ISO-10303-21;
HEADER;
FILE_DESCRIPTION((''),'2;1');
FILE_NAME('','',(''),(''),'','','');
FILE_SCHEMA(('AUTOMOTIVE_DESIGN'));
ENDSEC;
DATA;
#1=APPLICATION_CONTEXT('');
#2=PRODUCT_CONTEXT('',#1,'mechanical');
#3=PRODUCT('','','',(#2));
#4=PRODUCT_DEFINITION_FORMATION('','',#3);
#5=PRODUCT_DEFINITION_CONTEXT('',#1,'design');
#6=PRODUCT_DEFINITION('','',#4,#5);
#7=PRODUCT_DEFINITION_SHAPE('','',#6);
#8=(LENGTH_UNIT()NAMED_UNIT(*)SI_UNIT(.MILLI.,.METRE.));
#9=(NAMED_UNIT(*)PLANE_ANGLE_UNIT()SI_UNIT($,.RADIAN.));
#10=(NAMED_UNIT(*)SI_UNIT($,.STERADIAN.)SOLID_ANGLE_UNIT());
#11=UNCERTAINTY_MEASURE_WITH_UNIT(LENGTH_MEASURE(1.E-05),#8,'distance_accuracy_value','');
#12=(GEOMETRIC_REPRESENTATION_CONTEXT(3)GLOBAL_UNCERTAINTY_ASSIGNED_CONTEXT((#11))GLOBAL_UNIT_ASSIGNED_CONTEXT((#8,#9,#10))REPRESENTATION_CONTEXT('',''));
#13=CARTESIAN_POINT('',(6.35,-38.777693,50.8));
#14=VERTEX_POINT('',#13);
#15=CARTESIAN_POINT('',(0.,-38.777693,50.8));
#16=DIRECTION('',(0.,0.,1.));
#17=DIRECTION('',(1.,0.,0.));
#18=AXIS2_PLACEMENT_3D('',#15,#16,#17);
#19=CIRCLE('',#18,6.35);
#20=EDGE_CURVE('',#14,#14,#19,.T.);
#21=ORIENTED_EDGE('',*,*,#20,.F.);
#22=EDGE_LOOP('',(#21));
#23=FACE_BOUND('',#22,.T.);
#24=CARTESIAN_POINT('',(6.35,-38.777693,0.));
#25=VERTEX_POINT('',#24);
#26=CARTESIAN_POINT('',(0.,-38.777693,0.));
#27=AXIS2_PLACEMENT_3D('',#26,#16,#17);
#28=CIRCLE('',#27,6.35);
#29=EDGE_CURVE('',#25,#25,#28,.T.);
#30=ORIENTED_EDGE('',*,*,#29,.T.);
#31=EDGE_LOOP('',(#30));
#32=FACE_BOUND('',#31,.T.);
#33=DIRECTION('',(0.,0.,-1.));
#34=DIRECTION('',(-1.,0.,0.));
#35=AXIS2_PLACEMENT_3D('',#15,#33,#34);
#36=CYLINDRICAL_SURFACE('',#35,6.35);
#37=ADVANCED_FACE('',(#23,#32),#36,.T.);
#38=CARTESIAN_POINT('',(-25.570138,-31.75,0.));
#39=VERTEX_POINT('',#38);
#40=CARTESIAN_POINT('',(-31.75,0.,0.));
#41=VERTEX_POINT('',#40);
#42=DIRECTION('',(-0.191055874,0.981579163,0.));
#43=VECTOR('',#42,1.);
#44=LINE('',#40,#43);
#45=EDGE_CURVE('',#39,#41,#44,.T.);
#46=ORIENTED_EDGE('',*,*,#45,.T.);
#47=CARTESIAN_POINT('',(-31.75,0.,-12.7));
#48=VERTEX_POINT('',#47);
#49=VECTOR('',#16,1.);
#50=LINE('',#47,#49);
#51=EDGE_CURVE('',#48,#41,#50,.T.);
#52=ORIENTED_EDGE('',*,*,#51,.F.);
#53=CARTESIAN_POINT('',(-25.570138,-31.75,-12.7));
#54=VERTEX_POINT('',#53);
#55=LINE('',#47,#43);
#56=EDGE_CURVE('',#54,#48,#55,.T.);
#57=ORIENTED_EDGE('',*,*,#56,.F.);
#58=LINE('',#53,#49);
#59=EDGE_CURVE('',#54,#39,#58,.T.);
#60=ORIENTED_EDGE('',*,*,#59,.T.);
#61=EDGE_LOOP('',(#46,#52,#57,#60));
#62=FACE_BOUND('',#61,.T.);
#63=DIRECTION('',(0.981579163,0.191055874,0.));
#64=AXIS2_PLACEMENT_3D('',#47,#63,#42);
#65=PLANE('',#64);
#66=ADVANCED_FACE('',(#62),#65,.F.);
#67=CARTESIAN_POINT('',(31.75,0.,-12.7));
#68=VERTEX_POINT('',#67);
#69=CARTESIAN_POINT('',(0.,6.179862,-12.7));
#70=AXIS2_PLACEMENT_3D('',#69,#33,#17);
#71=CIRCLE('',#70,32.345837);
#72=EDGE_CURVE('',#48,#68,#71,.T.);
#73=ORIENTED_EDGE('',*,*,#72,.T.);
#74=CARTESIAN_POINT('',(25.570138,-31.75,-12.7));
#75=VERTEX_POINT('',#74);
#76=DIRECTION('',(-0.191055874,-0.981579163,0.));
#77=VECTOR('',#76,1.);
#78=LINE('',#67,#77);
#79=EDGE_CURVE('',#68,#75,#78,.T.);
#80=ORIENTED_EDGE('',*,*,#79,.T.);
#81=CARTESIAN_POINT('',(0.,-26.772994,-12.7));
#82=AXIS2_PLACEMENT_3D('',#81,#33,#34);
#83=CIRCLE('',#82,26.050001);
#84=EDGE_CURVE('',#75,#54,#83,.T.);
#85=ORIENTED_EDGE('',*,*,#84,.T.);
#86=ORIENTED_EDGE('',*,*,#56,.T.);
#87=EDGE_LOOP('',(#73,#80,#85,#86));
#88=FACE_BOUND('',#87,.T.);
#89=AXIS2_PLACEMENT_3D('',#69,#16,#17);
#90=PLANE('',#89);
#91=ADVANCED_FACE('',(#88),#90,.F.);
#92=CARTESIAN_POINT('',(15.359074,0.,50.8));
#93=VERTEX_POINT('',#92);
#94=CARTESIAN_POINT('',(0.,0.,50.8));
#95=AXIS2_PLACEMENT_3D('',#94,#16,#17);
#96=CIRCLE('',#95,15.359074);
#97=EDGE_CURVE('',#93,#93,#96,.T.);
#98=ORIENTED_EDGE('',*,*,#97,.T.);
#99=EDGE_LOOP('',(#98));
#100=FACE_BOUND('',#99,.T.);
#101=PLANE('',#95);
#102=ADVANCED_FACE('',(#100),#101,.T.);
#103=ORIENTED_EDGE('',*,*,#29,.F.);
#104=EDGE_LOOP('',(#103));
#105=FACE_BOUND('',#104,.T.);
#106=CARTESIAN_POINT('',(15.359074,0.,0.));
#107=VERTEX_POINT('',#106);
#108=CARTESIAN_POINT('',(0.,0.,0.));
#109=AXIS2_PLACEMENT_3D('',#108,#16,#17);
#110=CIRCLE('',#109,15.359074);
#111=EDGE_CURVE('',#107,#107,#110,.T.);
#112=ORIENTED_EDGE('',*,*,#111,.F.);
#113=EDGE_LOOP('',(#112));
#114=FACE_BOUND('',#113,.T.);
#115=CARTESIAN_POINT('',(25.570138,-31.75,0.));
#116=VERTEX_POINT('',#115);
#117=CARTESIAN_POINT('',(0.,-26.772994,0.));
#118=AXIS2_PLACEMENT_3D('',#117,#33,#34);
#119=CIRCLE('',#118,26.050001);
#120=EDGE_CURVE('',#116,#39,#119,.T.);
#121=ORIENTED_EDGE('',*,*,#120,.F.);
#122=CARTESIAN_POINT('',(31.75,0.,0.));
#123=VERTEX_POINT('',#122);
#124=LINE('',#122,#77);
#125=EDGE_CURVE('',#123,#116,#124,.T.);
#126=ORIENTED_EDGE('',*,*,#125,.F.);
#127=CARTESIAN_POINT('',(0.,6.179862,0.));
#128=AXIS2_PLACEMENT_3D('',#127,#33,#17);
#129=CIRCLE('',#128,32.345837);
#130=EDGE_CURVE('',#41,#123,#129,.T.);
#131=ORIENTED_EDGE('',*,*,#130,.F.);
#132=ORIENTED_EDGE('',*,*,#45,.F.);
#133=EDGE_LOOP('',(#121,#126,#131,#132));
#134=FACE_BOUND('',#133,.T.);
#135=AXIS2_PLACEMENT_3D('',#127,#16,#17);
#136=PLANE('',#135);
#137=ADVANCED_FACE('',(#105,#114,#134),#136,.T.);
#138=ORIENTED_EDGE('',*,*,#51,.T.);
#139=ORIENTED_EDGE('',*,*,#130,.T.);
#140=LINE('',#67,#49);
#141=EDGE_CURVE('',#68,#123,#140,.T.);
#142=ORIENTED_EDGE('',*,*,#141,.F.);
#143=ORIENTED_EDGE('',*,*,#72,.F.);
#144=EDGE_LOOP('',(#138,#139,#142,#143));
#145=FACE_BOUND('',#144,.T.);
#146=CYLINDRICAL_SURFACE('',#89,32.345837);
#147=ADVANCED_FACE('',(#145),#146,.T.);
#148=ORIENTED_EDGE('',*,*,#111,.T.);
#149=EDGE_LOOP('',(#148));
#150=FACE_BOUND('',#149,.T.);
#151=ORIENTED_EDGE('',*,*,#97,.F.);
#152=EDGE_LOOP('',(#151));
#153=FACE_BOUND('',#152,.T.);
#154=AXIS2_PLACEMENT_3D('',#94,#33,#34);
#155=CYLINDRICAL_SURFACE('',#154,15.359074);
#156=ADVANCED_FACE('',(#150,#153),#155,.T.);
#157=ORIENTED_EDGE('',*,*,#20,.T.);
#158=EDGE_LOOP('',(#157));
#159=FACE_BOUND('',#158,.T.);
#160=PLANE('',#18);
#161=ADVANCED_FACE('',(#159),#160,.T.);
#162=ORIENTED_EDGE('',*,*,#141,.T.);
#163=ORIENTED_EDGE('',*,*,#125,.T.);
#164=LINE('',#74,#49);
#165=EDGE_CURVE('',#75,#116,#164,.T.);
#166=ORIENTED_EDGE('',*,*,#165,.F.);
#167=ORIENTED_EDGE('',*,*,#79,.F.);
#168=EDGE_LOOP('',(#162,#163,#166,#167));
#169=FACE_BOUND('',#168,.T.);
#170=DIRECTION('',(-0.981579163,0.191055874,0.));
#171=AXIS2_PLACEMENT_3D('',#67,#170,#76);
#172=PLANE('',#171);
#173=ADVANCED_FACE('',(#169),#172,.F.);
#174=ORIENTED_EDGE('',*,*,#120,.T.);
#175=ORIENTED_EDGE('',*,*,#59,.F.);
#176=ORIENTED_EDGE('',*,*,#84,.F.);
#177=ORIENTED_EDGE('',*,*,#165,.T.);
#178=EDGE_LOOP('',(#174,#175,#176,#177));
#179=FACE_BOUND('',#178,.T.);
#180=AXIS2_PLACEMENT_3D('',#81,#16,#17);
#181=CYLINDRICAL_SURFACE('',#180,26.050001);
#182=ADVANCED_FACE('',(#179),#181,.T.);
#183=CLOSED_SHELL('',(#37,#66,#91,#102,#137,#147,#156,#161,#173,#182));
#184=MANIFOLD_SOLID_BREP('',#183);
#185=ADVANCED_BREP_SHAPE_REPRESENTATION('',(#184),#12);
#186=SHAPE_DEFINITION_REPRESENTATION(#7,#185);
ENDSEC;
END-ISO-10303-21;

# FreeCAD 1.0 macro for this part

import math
import FreeCAD as App
import Part
import Sketcher
Q = App.Units.Quantity

doc = App.newDocument("Part")
params = doc.addObject("Spreadsheet::Sheet", "Params")
for row, (alias, value) in enumerate([
    ("pad1_length", "2 in"),
    ("pad2_length", "0.5 in"),
    ("sketch3_diameter", "0.5 in"),
    ("pad3_length", "2 in"),
], start=1):
    params.set(f"A{row}", alias)
    params.set(f"B{row}", "=" + value)
    params.setAlias(f"B{row}", alias)

body = doc.addObject("PartDesign::Body", "Body")

sketch1 = body.newObject("Sketcher::SketchObject", "Sketch")
sketch1.AttachmentSupport = (doc.getObject("XY_Plane"), [""])
sketch1.MapMode = "FlatFace"
sketch1.addGeometry(Part.Circle(App.Vector(0, 0, 0), App.Vector(0, 0, 1), 15), False)
sketch1.addConstraint(Sketcher.Constraint("Coincident", 0, 3, -1, 1))
sketch1.addConstraint(Sketcher.Constraint("Diameter", 0, Q("30.718148 mm")))
pad1 = body.newObject("PartDesign::Pad", "Pad")
pad1.Profile = sketch1
pad1.setExpression("Length", "Params.pad1_length")

sketch2 = body.newObject("Sketcher::SketchObject", "Sketch001")
sketch2.AttachmentSupport = (doc.getObject("XY_Plane"), [""])
sketch2.MapMode = "FlatFace"
sketch2.addGeometry(Part.LineSegment(App.Vector(32, 0, 0), App.Vector(26, -32, 0)), False)
sketch2.addGeometry(Part.ArcOfCircle(Part.Circle(App.Vector(0, -27, 0), App.Vector(0, 0, 1), 26), math.radians(-169), math.radians(-11)), False)
sketch2.addGeometry(Part.LineSegment(App.Vector(-26, -32, 0), App.Vector(-32, 0, 0)), False)
sketch2.addGeometry(Part.ArcOfCircle(Part.Circle(App.Vector(0, 6, 0), App.Vector(0, 0, 1), 32), math.radians(-11), math.radians(191)), False)
sketch2.addConstraint(Sketcher.Constraint("Tangent", 0, 2, 1, 2))
sketch2.addConstraint(Sketcher.Constraint("Tangent", 1, 1, 2, 1))
sketch2.addConstraint(Sketcher.Constraint("Tangent", 2, 2, 3, 2))
sketch2.addConstraint(Sketcher.Constraint("Tangent", 3, 1, 0, 1))
sketch2.addConstraint(Sketcher.Constraint("Symmetric", 2, 2, 3, 1, -1, 1))
sketch2.addConstraint(Sketcher.Constraint("PointOnObject", 1, 3, -2))
sketch2.addConstraint(Sketcher.Constraint("DistanceX", 2, 2, 3, 1, Q("2.5 in")))
sketch2.addConstraint(Sketcher.Constraint("DistanceY", 0, 2, -1, 1, Q("1.25 in")))
sketch2.addConstraint(Sketcher.Constraint("Radius", 1, Q("26.050001 mm")))
pad2 = body.newObject("PartDesign::Pad", "Pad001")
pad2.Profile = sketch2
pad2.setExpression("Length", "Params.pad2_length")
pad2.Reversed = True

sketch3 = body.newObject("Sketcher::SketchObject", "Sketch002")
sketch3.AttachmentSupport = (doc.getObject("XY_Plane"), [""])
sketch3.MapMode = "FlatFace"
sketch3.addGeometry(Part.Circle(App.Vector(0, -39, 0), App.Vector(0, 0, 1), 6), False)
sketch3.addConstraint(Sketcher.Constraint("PointOnObject", 0, 3, -2))
sketch3.addConstraint(Sketcher.Constraint("Diameter", 0, Q("0.5 in")))
sketch3.addConstraint(Sketcher.Constraint("DistanceY", 0, 3, -1, 1, Q("38.777693 mm")))
sketch3.setExpression("Constraints[1]", "Params.sketch3_diameter")
pad3 = body.newObject("PartDesign::Pad", "Pad002")
pad3.Profile = sketch3
pad3.setExpression("Length", "Params.pad3_length")

doc.recompute()
